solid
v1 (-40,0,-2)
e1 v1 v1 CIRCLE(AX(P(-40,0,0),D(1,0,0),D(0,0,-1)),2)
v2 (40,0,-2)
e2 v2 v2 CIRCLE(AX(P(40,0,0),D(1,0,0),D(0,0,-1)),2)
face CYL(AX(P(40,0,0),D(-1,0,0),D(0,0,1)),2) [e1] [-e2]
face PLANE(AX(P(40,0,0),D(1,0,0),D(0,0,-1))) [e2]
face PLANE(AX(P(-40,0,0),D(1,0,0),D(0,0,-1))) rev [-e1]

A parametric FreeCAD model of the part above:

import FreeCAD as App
import Part
import Sketcher
Q = App.Units.Quantity

doc = App.newDocument("Part")
body = doc.addObject("PartDesign::Body", "Body")

# Sketch on YZ plane
sketch1 = body.newObject("Sketcher::SketchObject", "Sketch")
sketch1.AttachmentSupport = (doc.getObject("YZ_Plane"), [""])
sketch1.MapMode = "FlatFace"
sketch1.addGeometry(Part.Circle(App.Vector(0, 0, 0), App.Vector(0, 0, 1), 2), False)
sketch1.addConstraint([
    Sketcher.Constraint("Coincident", 0, 3, -1, 1),
    Sketcher.Constraint("Diameter", 0, Q("4 mm")),
])
pad1 = body.newObject("PartDesign::Pad", "Pad")
pad1.Profile = sketch1
pad1.Length = 80
pad1.Midplane = True

doc.recompute()
